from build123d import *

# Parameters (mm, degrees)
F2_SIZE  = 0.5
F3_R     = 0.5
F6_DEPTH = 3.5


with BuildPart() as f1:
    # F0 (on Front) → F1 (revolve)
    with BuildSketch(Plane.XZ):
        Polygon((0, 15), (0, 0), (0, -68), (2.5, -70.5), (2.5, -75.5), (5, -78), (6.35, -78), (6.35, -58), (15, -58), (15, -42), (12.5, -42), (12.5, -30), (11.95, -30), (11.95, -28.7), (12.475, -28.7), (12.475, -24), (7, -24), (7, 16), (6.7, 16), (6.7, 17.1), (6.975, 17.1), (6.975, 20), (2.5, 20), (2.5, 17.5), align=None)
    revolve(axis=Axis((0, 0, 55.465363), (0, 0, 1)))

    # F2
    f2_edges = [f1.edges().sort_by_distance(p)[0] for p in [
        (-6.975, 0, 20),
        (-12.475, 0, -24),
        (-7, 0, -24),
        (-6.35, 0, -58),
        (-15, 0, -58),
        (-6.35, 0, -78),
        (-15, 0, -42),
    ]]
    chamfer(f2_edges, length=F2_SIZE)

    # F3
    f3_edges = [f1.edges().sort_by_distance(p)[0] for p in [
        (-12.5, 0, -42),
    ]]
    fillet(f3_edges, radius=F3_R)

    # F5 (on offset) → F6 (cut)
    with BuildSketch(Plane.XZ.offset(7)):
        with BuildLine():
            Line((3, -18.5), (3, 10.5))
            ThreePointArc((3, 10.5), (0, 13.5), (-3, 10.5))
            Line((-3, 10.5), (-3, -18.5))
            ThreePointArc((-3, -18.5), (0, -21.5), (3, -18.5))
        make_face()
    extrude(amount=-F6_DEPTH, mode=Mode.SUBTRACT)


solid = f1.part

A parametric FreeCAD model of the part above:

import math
import FreeCAD as App
import Part
import Sketcher

V = App.Vector
Q = App.Units.Quantity


def edges_at(feature, points):
    """Names of the edges that pass closest to the given points."""
    edges = feature.Shape.Edges
    near = lambda p: min(range(len(edges)), key=lambda i: edges[i].distToShape(Part.Vertex(*p))[0])
    return sorted({f"Edge{near(p) + 1}" for p in points})


def add_polygon(sketch, points):
    """Adds a closed chain of lines whose ends are joined by coincident constraints."""
    first, n = sketch.GeometryCount, len(points)
    for a, b in zip(points, points[1:] + points[:1]):
        sketch.addGeometry(Part.LineSegment(App.Vector(*a, 0), App.Vector(*b, 0)), False)
    for i in range(n):
        sketch.addConstraint(Sketcher.Constraint("Coincident", first + i, 2, first + (i + 1) % n, 1))

doc = App.newDocument("Part")
body = doc.addObject("PartDesign::Body", "Body")

# Sketch on XZ plane
sketch1 = doc.addObject("Sketcher::SketchObject", "Sketch")
body.addObject(sketch1)
sketch1.AttachmentSupport = (doc.XZ_Plane, [""])
sketch1.MapMode = "FlatFace"
add_polygon(sketch1, [(0, 15), (0, -68), (2.5, -70.5), (2.5, -75.5), (5, -78), (6.35, -78), (6.35, -58), (15, -58), (15, -42), (12.5, -42), (12.5, -30), (11.95, -30), (11.95, -28.7), (12.475, -28.7), (12.475, -24), (7, -24), (7, 16), (6.7, 16), (6.7, 17.1), (6.975, 17.1), (6.975, 20), (2.5, 20), (2.5, 17.5)])  # lines 0-22
sketch1.addConstraint([
    Sketcher.Constraint("Vertical", 0),
    Sketcher.Constraint("Vertical", 2),
    Sketcher.Constraint("Horizontal", 4),
    Sketcher.Constraint("Vertical", 5),
    Sketcher.Constraint("Horizontal", 6),
    Sketcher.Constraint("Vertical", 7),
    Sketcher.Constraint("Horizontal", 8),
    Sketcher.Constraint("Vertical", 9),
    Sketcher.Constraint("Horizontal", 10),
    Sketcher.Constraint("Vertical", 11),
    Sketcher.Constraint("Horizontal", 12),
    Sketcher.Constraint("Vertical", 13),
    Sketcher.Constraint("Horizontal", 14),
    Sketcher.Constraint("Vertical", 15),
    Sketcher.Constraint("Horizontal", 16),
    Sketcher.Constraint("Vertical", 17),
    Sketcher.Constraint("Horizontal", 18),
    Sketcher.Constraint("Vertical", 19),
    Sketcher.Constraint("Horizontal", 20),
    Sketcher.Constraint("Vertical", 21),
    Sketcher.Constraint("PointOnObject", 0, 2, -2),
    Sketcher.Constraint("Parallel", 1, 3),
    Sketcher.Constraint("Perpendicular", 3, 22),
    Sketcher.Constraint("Vertical", 2, 2, 20, 2),
    Sketcher.Constraint("Equal", 8, 21),
    Sketcher.Constraint("Equal", 1, 3),
    Sketcher.Constraint("Equal", 3, 22),
    Sketcher.Constraint("DistanceY", 0, 2, 0, 1, Q("83 mm")),
    Sketcher.Constraint("DistanceY", 2, 2, 2, 1, Q("5 mm")),
    Sketcher.Constraint("DistanceY", 5, 1, 5, 2, Q("20 mm")),
    Sketcher.Constraint("DistanceY", 7, 1, 7, 2, Q("16 mm")),
    Sketcher.Constraint("DistanceY", 9, 1, 9, 2, Q("12 mm")),
    Sketcher.Constraint("DistanceY", 15, 1, 15, 2, Q("40 mm")),
    Sketcher.Constraint("DistanceX", 8, 2, 8, 1, Q("2.5 mm")),
    Sketcher.Constraint("DistanceX", 16, 2, 16, 1, Q("0.3 mm")),
    Sketcher.Constraint("DistanceY", 11, 1, 11, 2, Q("1.3 mm")),
    Sketcher.Constraint("DistanceY", 13, 1, 13, 2, Q("4.7 mm")),
    Sketcher.Constraint("DistanceY", 17, 1, 17, 2, Q("1.1 mm")),
    Sketcher.Constraint("DistanceY", 19, 1, 19, 2, Q("2.9 mm")),
    Sketcher.Constraint("DistanceY", 0, 2, -1, 1, Q("68 mm")),
    Sketcher.Constraint("DistanceX", -1, 1, 6, 2, Q("15 mm")),
    Sketcher.Constraint("DistanceX", -1, 1, 14, 2, Q("7 mm")),
    Sketcher.Constraint("DistanceX", 4, 1, 4, 2, Q("1.35 mm")),
    Sketcher.Constraint("DistanceX", 10, 2, 10, 1, Q("0.55 mm")),
    Sketcher.Constraint("DistanceX", 18, 2, 13, 2, Q("5.5 mm")),
    Sketcher.Constraint("DistanceX", 12, 1, 12, 2, Q("0.525 mm")),
])
revolution = doc.addObject("PartDesign::Revolution", "Revolution")
body.addObject(revolution)
revolution.Profile = sketch1
revolution.ReferenceAxis = (sketch1, ["V_Axis"])
revolution.Angle = 360
doc.recompute()

chamfer = doc.addObject("PartDesign::Chamfer", "Chamfer")
body.addObject(chamfer)
chamfer.Base = (revolution, edges_at(revolution, [
    (-6.975, 0, 20),
    (-12.475, 0, -24),
    (-7, 0, -24),
    (-6.35, 0, -58),
    (-15, 0, -58),
    (-6.35, 0, -78),
    (-15, 0, -42),
]))
chamfer.Size = 0.5
doc.recompute()

fillet = doc.addObject("PartDesign::Fillet", "Fillet")
body.addObject(fillet)
fillet.Base = (chamfer, edges_at(chamfer, [(-12.5, 0, -42)]))
fillet.Radius = 0.5

# Sketch on XZ plane
sketch2 = doc.addObject("Sketcher::SketchObject", "Sketch001")
body.addObject(sketch2)
sketch2.AttachmentSupport = (doc.XZ_Plane, [""])
sketch2.MapMode = "FlatFace"
sketch2.AttachmentOffset = App.Placement(V(0, 0, 7), App.Rotation())
sketch2.addGeometry([
    Part.LineSegment(V(3, -18.5, 0), V(3, 10.5, 0)),
    Part.ArcOfCircle(Part.Circle(V(0, 10.5, 0), V(0, 0, 1), 3), math.radians(0), math.radians(180)),
    Part.LineSegment(V(-3, 10.5, 0), V(-3, -18.5, 0)),
    Part.ArcOfCircle(Part.Circle(V(0, -18.5, 0), V(0, 0, 1), 3), math.radians(180), math.radians(360)),
], False)
sketch2.addConstraint([
    Sketcher.Constraint("Tangent", 0, 2, 1, 1),
    Sketcher.Constraint("Tangent", 1, 2, 2, 1),
    Sketcher.Constraint("Tangent", 2, 2, 3, 1),
    Sketcher.Constraint("Tangent", 3, 2, 0, 1),
    Sketcher.Constraint("Vertical", 0),
    Sketcher.Constraint("Vertical", 2),
    Sketcher.Constraint("PointOnObject", 1, 3, -2),
    Sketcher.Constraint("Radius", 1, Q("3 mm")),
    Sketcher.Constraint("DistanceY", 0, 1, 0, 2, Q("29 mm")),
    Sketcher.Constraint("DistanceY", -1, 1, 1, 3, Q("10.5 mm")),
])
pocket1 = doc.addObject("PartDesign::Pocket", "Pocket")
body.addObject(pocket1)
pocket1.Profile = sketch2
pocket1.Length = 3.5

doc.recompute()
